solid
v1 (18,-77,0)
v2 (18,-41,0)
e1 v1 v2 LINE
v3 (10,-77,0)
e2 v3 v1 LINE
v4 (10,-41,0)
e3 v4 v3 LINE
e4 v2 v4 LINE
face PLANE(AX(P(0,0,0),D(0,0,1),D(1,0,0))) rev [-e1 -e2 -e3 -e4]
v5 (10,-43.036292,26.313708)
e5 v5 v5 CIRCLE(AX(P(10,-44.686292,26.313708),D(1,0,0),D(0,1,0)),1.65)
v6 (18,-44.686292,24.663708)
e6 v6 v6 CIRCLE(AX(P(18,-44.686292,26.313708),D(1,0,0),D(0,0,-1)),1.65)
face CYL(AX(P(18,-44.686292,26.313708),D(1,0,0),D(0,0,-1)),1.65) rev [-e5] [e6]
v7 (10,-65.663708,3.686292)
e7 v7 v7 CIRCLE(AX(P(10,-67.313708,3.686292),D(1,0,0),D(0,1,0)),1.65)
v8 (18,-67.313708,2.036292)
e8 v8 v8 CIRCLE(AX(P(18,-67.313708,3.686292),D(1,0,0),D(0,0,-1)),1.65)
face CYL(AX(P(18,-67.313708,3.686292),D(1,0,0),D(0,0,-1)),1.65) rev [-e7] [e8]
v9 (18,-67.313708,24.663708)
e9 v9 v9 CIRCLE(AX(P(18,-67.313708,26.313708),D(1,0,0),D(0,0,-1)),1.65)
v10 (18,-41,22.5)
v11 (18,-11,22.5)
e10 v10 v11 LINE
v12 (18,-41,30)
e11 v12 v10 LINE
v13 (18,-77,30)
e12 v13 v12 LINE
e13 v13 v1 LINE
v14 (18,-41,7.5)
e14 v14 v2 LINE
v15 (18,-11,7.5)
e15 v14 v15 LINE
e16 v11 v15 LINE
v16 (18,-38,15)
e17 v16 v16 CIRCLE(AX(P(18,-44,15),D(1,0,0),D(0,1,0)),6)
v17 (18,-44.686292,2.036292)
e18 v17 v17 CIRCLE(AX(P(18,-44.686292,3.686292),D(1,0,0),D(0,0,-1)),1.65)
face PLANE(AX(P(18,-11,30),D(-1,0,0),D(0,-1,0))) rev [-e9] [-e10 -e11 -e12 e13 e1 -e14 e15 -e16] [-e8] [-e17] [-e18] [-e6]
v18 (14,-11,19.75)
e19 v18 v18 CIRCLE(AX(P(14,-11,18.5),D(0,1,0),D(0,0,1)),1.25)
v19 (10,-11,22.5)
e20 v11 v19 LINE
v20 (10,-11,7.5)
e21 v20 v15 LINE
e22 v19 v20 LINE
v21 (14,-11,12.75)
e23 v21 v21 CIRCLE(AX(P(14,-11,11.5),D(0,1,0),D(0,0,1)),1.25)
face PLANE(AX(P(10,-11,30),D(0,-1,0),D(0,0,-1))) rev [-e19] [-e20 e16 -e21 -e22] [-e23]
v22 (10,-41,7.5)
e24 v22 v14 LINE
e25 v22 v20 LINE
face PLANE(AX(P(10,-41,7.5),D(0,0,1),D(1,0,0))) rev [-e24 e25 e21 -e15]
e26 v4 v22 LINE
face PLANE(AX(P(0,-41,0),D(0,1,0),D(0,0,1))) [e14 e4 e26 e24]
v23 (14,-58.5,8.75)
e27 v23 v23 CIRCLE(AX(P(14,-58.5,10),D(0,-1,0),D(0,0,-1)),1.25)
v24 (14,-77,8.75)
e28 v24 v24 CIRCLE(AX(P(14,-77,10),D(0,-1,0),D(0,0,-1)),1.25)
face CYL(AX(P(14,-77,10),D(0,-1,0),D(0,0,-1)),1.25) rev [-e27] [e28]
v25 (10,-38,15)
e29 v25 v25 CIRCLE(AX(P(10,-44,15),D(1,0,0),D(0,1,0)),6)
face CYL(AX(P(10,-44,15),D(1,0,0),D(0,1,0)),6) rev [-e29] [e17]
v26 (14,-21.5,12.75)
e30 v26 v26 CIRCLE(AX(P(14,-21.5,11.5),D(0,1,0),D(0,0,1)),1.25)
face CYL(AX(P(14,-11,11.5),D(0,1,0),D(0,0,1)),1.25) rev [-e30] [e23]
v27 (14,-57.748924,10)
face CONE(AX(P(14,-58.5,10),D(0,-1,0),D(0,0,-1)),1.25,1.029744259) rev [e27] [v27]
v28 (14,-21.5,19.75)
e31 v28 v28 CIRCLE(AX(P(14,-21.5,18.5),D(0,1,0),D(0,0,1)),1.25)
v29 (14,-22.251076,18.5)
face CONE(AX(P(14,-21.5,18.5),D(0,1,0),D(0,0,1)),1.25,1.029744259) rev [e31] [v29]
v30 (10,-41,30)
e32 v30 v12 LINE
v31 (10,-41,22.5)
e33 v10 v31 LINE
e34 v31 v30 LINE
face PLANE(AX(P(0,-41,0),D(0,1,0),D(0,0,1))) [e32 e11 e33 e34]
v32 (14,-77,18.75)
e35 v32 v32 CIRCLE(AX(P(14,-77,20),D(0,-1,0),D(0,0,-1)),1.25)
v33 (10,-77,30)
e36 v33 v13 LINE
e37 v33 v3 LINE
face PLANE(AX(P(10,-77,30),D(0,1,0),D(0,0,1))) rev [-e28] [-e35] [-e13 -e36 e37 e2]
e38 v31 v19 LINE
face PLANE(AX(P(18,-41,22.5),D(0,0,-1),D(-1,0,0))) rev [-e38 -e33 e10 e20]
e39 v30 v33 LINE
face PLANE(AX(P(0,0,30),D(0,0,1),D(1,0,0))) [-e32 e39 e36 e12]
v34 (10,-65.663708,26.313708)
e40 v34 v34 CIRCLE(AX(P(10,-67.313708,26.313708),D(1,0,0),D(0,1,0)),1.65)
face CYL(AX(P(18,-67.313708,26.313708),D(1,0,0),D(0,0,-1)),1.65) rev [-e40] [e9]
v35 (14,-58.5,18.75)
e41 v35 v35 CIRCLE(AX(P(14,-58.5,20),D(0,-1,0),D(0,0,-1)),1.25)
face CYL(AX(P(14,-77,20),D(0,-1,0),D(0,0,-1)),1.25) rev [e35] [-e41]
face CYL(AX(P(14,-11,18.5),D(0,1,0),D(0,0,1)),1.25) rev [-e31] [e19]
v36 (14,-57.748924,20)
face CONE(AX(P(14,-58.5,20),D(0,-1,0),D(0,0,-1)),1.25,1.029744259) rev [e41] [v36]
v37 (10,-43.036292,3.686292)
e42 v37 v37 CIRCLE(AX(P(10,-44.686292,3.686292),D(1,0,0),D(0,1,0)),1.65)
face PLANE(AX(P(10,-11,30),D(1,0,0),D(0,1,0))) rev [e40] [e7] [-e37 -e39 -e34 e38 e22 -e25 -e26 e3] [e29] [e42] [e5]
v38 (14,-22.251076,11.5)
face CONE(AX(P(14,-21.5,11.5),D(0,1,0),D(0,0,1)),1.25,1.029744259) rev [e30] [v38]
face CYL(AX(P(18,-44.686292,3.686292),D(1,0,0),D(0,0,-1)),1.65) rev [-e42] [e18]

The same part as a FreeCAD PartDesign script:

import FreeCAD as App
import Part
import Sketcher
from FreeCAD import Vector
Q = App.Units.Quantity


def add_polygon(sketch, points):
    """Adds a closed chain of lines whose ends are joined by coincident constraints."""
    first, n = sketch.GeometryCount, len(points)
    for a, b in zip(points, points[1:] + points[:1]):
        sketch.addGeometry(Part.LineSegment(App.Vector(*a, 0), App.Vector(*b, 0)), False)
    for i in range(n):
        sketch.addConstraint(Sketcher.Constraint("Coincident", first + i, 2, first + (i + 1) % n, 1))

doc = App.newDocument("Part")
body = doc.addObject("PartDesign::Body", "Body")

sketch1 = body.newObject("Sketcher::SketchObject", "Sketch")
sketch1.AttachmentSupport = (doc.getObject("XY_Plane"), [""])
sketch1.MapMode = "FlatFace"
add_polygon(sketch1, [(10, -11), (10, -77), (18, -77), (18, -11)])
sketch1.addConstraint([
    Sketcher.Constraint("Vertical", 0),
    Sketcher.Constraint("Horizontal", 1),
    Sketcher.Constraint("Vertical", 2),
    Sketcher.Constraint("Horizontal", 3),
    Sketcher.Constraint("DistanceX", 1, 1, 1, 2, Q("8 mm")),
    Sketcher.Constraint("DistanceY", 0, 2, 0, 1, Q("66 mm")),
    Sketcher.Constraint("DistanceX", -1, 1, 0, 2, Q("10 mm")),
    Sketcher.Constraint("DistanceY", 0, 2, -1, 1, Q("77 mm")),
])
pad1 = body.newObject("PartDesign::Pad", "Pad")
pad1.Profile = sketch1
pad1.Length = 30

sketch2 = body.newObject("Sketcher::SketchObject", "Sketch001")
sketch2.AttachmentSupport = (doc.getObject("YZ_Plane"), [""])
sketch2.MapMode = "FlatFace"
sketch2.AttachmentOffset = App.Placement(Vector(0, 0, 10), App.Rotation())
sketch2.addGeometry([
    Part.Circle(Vector(-44.7, 26.3, 0), Vector(0, 0, 1), 1.5),
    Part.Circle(Vector(-44.7, 3.7, 0), Vector(0, 0, 1), 1.5),
    Part.Circle(Vector(-67.3, 26.3, 0), Vector(0, 0, 1), 1.5),
    Part.Circle(Vector(-67.3, 3.7, 0), Vector(0, 0, 1), 1.5),
], False)
sketch2.addConstraint([
    Sketcher.Constraint("Equal", 0, 1),
    Sketcher.Constraint("Equal", 1, 2),
    Sketcher.Constraint("Equal", 2, 3),
    Sketcher.Constraint("Horizontal", 0, 3, 2, 3),
    Sketcher.Constraint("Horizontal", 1, 3, 3, 3),
    Sketcher.Constraint("Vertical", 0, 3, 1, 3),
    Sketcher.Constraint("Vertical", 2, 3, 3, 3),
    Sketcher.Constraint("Diameter", 0, Q("3 mm")),
    Sketcher.Constraint("DistanceX", 0, 3, -1, 1, Q("44.686292 mm")),
    Sketcher.Constraint("DistanceY", -1, 1, 0, 3, Q("26.313708 mm")),
    Sketcher.Constraint("DistanceY", -1, 1, 1, 3, Q("3.686292 mm")),
    Sketcher.Constraint("DistanceX", 2, 3, -1, 1, Q("67.313708 mm")),
])
pocket1 = body.newObject("PartDesign::Pocket", "Pocket")
pocket1.Profile = sketch2
pocket1.Length = 5
pocket1.Reversed = True

sketch3 = body.newObject("Sketcher::SketchObject", "Sketch002")
sketch3.AttachmentSupport = (doc.getObject("YZ_Plane"), [""])
sketch3.MapMode = "FlatFace"
sketch3.AttachmentOffset = App.Placement(Vector(0, 0, 18), App.Rotation())
sketch3.addGeometry([
    Part.Circle(Vector(-44.7, 3.7, 0), Vector(0, 0, 1), 1.6),
    Part.Circle(Vector(-67.3, 3.7, 0), Vector(0, 0, 1), 1.6),
    Part.Circle(Vector(-67.3, 26.3, 0), Vector(0, 0, 1), 1.6),
    Part.Circle(Vector(-44.7, 26.3, 0), Vector(0, 0, 1), 1.6),
], False)
sketch3.addConstraint([
    Sketcher.Constraint("Equal", 0, 1),
    Sketcher.Constraint("Equal", 1, 2),
    Sketcher.Constraint("Equal", 2, 3),
    Sketcher.Constraint("Horizontal", 0, 3, 1, 3),
    Sketcher.Constraint("Horizontal", 2, 3, 3, 3),
    Sketcher.Constraint("Vertical", 1, 3, 2, 3),
    Sketcher.Constraint("Vertical", 0, 3, 3, 3),
    Sketcher.Constraint("Diameter", 0, Q("3.3 mm")),
    Sketcher.Constraint("DistanceX", 0, 3, -1, 1, Q("44.686292 mm")),
    Sketcher.Constraint("DistanceY", -1, 1, 0, 3, Q("3.686292 mm")),
    Sketcher.Constraint("DistanceX", 1, 3, -1, 1, Q("67.313708 mm")),
    Sketcher.Constraint("DistanceY", -1, 1, 2, 3, Q("26.313708 mm")),
])
doc.recompute()
hole = body.newObject("PartDesign::Hole", "Hole")
hole.Profile = sketch3
hole.ThreadType = "None"
hole.Diameter = 3.3
hole.DepthType = "Dimension"
hole.Depth = 10.1
hole.DrillPoint = "Angled"
hole.DrillPointAngle = 118

sketch4 = body.newObject("Sketcher::SketchObject", "Sketch003")
sketch4.AttachmentSupport = (doc.getObject("XZ_Plane"), [""])
sketch4.MapMode = "FlatFace"
sketch4.AttachmentOffset = App.Placement(Vector(0, 0, 11), App.Rotation())
sketch4.addGeometry([
    Part.Circle(Vector(14, 11.5, 0), Vector(0, 0, 1), 1),
    Part.Circle(Vector(14, 18.5, 0), Vector(0, 0, 1), 1),
], False)
sketch4.addConstraint([
    Sketcher.Constraint("Equal", 0, 1),
    Sketcher.Constraint("Vertical", 0, 3, 1, 3),
    Sketcher.Constraint("Diameter", 0, Q("2 mm")),
    Sketcher.Constraint("DistanceX", -1, 1, 0, 3, Q("14 mm")),
    Sketcher.Constraint("DistanceY", 0, 3, 1, 3, Q("7 mm")),
    Sketcher.Constraint("DistanceY", -1, 1, 0, 3, Q("11.5 mm")),
])
pocket2 = body.newObject("PartDesign::Pocket", "Pocket001")
pocket2.Profile = sketch4
pocket2.Length = 5
pocket2.Reversed = True

sketch5 = body.newObject("Sketcher::SketchObject", "Sketch004")
sketch5.AttachmentSupport = (doc.getObject("XZ_Plane"), [""])
sketch5.MapMode = "FlatFace"
sketch5.AttachmentOffset = App.Placement(Vector(0, 0, 11), App.Rotation())
sketch5.addGeometry([
    Part.Circle(Vector(14, 11.5, 0), Vector(0, 0, 1), 1.2),
    Part.Circle(Vector(14, 18.5, 0), Vector(0, 0, 1), 1.2),
], False)
sketch5.addConstraint([
    Sketcher.Constraint("Equal", 0, 1),
    Sketcher.Constraint("Vertical", 0, 3, 1, 3),
    Sketcher.Constraint("Diameter", 0, Q("2.5 mm")),
    Sketcher.Constraint("DistanceX", -1, 1, 0, 3, Q("14 mm")),
    Sketcher.Constraint("DistanceY", 0, 3, 1, 3, Q("7 mm")),
    Sketcher.Constraint("DistanceY", -1, 1, 0, 3, Q("11.5 mm")),
])
doc.recompute()
hole2 = body.newObject("PartDesign::Hole", "Hole001")
hole2.Profile = sketch5
hole2.ThreadType = "None"
hole2.Diameter = 2.5
hole2.DepthType = "Dimension"
hole2.Depth = 10.5
hole2.DrillPoint = "Angled"
hole2.DrillPointAngle = 118
hole2.Reversed = True

sketch6 = body.newObject("Sketcher::SketchObject", "Sketch005")
sketch6.AttachmentSupport = (doc.getObject("XZ_Plane"), [""])
sketch6.MapMode = "FlatFace"
sketch6.AttachmentOffset = App.Placement(Vector(0, 0, 77), App.Rotation())
sketch6.addGeometry([
    Part.Circle(Vector(14, 20, 0), Vector(0, 0, 1), 1),
    Part.Circle(Vector(14, 10, 0), Vector(0, 0, 1), 1),
], False)
sketch6.addConstraint([
    Sketcher.Constraint("Equal", 0, 1),
    Sketcher.Constraint("Vertical", 0, 3, 1, 3),
    Sketcher.Constraint("Diameter", 0, Q("2 mm")),
    Sketcher.Constraint("DistanceX", -1, 1, 0, 3, Q("14 mm")),
    Sketcher.Constraint("DistanceY", -1, 1, 0, 3, Q("20 mm")),
    Sketcher.Constraint("DistanceY", -1, 1, 1, 3, Q("10 mm")),
])
pocket3 = body.newObject("PartDesign::Pocket", "Pocket002")
pocket3.Profile = sketch6
pocket3.Length = 5

sketch7 = body.newObject("Sketcher::SketchObject", "Sketch006")
sketch7.AttachmentSupport = (doc.getObject("XZ_Plane"), [""])
sketch7.MapMode = "FlatFace"
sketch7.AttachmentOffset = App.Placement(Vector(0, 0, 77), App.Rotation())
sketch7.addGeometry([
    Part.Circle(Vector(14, 20, 0), Vector(0, 0, 1), 1.2),
    Part.Circle(Vector(14, 10, 0), Vector(0, 0, 1), 1.2),
], False)
sketch7.addConstraint([
    Sketcher.Constraint("Equal", 0, 1),
    Sketcher.Constraint("Vertical", 0, 3, 1, 3),
    Sketcher.Constraint("Diameter", 0, Q("2.5 mm")),
    Sketcher.Constraint("DistanceX", -1, 1, 0, 3, Q("14 mm")),
    Sketcher.Constraint("DistanceY", -1, 1, 0, 3, Q("20 mm")),
    Sketcher.Constraint("DistanceY", -1, 1, 1, 3, Q("10 mm")),
])
doc.recompute()
hole3 = body.newObject("PartDesign::Hole", "Hole002")
hole3.Profile = sketch7
hole3.ThreadType = "None"
hole3.Diameter = 2.5
hole3.DepthType = "Dimension"
hole3.Depth = 18.5
hole3.DrillPoint = "Angled"
hole3.DrillPointAngle = 118

sketch8 = body.newObject("Sketcher::SketchObject", "Sketch007")
sketch8.AttachmentSupport = (doc.getObject("XZ_Plane"), [""])
sketch8.MapMode = "FlatFace"
sketch8.AttachmentOffset = App.Placement(Vector(0, 0, 11), App.Rotation())
add_polygon(sketch8, [(10, 0), (10, 8), (18, 8), (18, 0)])
add_polygon(sketch8, [(10, 22), (10, 30), (18, 30), (18, 22)])
sketch8.addConstraint([
    Sketcher.Constraint("Vertical", 0),
    Sketcher.Constraint("Horizontal", 1),
    Sketcher.Constraint("Vertical", 2),
    Sketcher.Constraint("Horizontal", 3),
    Sketcher.Constraint("Vertical", 4),
    Sketcher.Constraint("Horizontal", 5),
    Sketcher.Constraint("Vertical", 6),
    Sketcher.Constraint("Horizontal", 7),
    Sketcher.Constraint("PointOnObject", 2, 2, -1),
    Sketcher.Constraint("Vertical", 3, 2, 4, 2),
    Sketcher.Constraint("Vertical", 2, 2, 5, 2),
    Sketcher.Constraint("Equal", 2, 4),
    Sketcher.Constraint("DistanceX", 1, 1, 1, 2, Q("8 mm")),
    Sketcher.Constraint("DistanceY", 0, 1, 0, 2, Q("7.5 mm")),
    Sketcher.Constraint("DistanceX", -1, 1, 0, 2, Q("10 mm")),
    Sketcher.Constraint("DistanceY", -1, 1, 4, 2, Q("30 mm")),
])
pocket4 = body.newObject("PartDesign::Pocket", "Pocket003")
pocket4.Profile = sketch8
pocket4.Length = 30
pocket4.Reversed = True

sketch9 = body.newObject("Sketcher::SketchObject", "Sketch008")
sketch9.AttachmentSupport = (doc.getObject("YZ_Plane"), [""])
sketch9.MapMode = "FlatFace"
sketch9.AttachmentOffset = App.Placement(Vector(0, 0, 18), App.Rotation())
sketch9.addGeometry(Part.Circle(Vector(-44, 15, 0), Vector(0, 0, 1), 6), False)
sketch9.addConstraint([
    Sketcher.Constraint("Diameter", 0, Q("12 mm")),
    Sketcher.Constraint("DistanceX", 0, 3, -1, 1, Q("44 mm")),
    Sketcher.Constraint("DistanceY", -1, 1, 0, 3, Q("15 mm")),
])
pocket5 = body.newObject("PartDesign::Pocket", "Pocket004")
pocket5.Profile = sketch9
pocket5.Type = "ThroughAll"

doc.recompute()
